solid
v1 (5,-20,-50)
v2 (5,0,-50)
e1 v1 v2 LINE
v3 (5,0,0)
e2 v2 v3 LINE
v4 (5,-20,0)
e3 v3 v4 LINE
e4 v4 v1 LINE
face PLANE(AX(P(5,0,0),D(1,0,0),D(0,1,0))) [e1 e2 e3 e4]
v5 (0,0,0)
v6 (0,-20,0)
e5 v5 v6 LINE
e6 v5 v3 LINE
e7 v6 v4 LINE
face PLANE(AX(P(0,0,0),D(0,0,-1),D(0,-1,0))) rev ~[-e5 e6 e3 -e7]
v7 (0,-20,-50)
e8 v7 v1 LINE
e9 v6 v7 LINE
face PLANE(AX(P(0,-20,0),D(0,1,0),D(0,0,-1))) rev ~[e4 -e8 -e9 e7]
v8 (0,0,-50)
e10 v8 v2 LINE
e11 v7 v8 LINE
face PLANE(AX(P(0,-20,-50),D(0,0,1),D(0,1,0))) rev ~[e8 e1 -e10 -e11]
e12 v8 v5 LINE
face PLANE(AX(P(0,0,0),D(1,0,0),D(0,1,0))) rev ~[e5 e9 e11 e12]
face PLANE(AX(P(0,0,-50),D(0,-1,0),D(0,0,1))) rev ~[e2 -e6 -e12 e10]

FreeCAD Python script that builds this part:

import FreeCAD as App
import Part
import Sketcher
from FreeCAD import Vector
Q = App.Units.Quantity

doc = App.newDocument("Part")
body = doc.addObject("PartDesign::Body", "Body")

# Sketch on YZ plane
sketch1 = body.newObject("Sketcher::SketchObject", "Sketch")
sketch1.AttachmentSupport = (doc.getObject("YZ_Plane"), [""])
sketch1.MapMode = "FlatFace"
sketch1.addGeometry(Part.LineSegment(Vector(0, -50, 0), Vector(0, 0, 0)), False)
sketch1.addGeometry(Part.LineSegment(Vector(0, 0, 0), Vector(-20, 0, 0)), False)
sketch1.addGeometry(Part.LineSegment(Vector(-20, 0, 0), Vector(-20, -50, 0)), False)
sketch1.addGeometry(Part.LineSegment(Vector(-20, -50, 0), Vector(0, -50, 0)), False)
sketch1.addConstraint(Sketcher.Constraint("Coincident", 0, 2, 1, 1))
sketch1.addConstraint(Sketcher.Constraint("Coincident", 1, 2, 2, 1))
sketch1.addConstraint(Sketcher.Constraint("Coincident", 2, 2, 3, 1))
sketch1.addConstraint(Sketcher.Constraint("Coincident", 3, 2, 0, 1))
sketch1.addConstraint(Sketcher.Constraint("Vertical", 0))
sketch1.addConstraint(Sketcher.Constraint("Horizontal", 1))
sketch1.addConstraint(Sketcher.Constraint("Vertical", 2))
sketch1.addConstraint(Sketcher.Constraint("Horizontal", 3))
sketch1.addConstraint(Sketcher.Constraint("Coincident", 0, 2, -1, 1))
sketch1.addConstraint(Sketcher.Constraint("DistanceX", 1, 2, 1, 1, Q("20 mm")))
sketch1.addConstraint(Sketcher.Constraint("DistanceY", 0, 1, 0, 2, Q("50 mm")))
pad1 = body.newObject("PartDesign::Pad", "Pad")
pad1.Profile = sketch1
pad1.Length = 5

doc.recompute()
